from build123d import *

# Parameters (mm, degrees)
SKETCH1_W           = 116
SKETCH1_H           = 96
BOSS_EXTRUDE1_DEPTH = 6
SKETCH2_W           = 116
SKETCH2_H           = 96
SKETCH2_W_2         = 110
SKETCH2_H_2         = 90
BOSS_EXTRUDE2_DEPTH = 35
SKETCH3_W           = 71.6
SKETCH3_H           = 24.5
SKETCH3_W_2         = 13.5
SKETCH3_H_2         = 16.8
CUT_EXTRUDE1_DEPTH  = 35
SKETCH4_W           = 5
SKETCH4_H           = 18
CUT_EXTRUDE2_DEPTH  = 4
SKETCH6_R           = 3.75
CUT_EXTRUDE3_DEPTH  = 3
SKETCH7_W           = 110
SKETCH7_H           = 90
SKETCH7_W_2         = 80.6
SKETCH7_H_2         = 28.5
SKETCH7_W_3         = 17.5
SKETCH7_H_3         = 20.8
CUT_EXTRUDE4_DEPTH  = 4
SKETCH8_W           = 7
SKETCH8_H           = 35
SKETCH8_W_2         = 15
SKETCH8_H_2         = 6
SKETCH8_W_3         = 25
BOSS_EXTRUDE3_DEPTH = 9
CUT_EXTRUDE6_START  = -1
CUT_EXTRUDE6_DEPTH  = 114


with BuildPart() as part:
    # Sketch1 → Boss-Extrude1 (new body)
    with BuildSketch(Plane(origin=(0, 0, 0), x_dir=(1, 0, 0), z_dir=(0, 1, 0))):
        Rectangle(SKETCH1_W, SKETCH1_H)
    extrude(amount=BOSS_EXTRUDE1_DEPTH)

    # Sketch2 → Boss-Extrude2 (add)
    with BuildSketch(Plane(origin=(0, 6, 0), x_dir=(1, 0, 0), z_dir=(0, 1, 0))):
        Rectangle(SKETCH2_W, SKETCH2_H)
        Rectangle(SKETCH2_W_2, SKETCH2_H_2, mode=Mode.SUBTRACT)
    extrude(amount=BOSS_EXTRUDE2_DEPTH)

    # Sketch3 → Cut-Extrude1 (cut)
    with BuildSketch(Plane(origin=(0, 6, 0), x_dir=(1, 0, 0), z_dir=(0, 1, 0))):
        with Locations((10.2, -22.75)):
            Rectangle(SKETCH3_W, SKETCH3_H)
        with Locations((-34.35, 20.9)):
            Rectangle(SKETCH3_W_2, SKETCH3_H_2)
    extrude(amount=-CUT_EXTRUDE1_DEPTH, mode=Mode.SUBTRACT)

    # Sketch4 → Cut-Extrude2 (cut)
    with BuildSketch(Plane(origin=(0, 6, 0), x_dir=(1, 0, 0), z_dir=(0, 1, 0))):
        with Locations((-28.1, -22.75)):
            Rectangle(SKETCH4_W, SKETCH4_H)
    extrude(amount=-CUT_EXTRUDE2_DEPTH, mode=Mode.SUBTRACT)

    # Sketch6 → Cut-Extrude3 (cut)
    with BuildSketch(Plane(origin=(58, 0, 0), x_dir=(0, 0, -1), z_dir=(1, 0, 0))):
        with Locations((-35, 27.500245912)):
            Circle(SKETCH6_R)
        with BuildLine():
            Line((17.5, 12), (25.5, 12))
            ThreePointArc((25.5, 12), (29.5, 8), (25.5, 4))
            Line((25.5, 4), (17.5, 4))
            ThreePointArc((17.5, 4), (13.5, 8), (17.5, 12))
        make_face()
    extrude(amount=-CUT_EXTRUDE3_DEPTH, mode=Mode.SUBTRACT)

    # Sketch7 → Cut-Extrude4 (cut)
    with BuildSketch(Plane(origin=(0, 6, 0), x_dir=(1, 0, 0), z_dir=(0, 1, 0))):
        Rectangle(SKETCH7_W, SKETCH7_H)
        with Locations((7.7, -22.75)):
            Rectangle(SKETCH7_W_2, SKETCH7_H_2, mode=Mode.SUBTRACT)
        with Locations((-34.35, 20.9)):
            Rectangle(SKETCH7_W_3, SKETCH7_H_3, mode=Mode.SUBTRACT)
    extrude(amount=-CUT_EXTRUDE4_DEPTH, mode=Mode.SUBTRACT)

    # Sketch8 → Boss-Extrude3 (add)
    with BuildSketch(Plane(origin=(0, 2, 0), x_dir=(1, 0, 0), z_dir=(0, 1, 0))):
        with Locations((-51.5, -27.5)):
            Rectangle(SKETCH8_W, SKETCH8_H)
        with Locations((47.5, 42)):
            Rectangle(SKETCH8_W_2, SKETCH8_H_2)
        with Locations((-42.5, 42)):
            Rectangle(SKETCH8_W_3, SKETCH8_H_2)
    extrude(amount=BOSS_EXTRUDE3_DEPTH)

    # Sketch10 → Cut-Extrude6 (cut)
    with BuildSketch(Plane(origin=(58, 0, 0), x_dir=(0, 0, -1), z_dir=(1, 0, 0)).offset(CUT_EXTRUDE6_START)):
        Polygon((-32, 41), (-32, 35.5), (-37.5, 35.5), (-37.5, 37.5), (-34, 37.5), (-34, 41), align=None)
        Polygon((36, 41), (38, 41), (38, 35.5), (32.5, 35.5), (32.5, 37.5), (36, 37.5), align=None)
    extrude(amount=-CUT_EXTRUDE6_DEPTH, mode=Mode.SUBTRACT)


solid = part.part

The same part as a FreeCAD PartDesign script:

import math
import FreeCAD as App
import Part
import Sketcher

V = App.Vector
Q = App.Units.Quantity

doc = App.newDocument("Part")
body = doc.addObject("PartDesign::Body", "Body")

# Sketch on XZ plane
sketch1 = body.newObject("Sketcher::SketchObject", "Sketch")
sketch1.AttachmentSupport = (doc.getObject("XZ_Plane"), [""])
sketch1.MapMode = "FlatFace"
sketch1.addGeometry(Part.LineSegment(V(-58, -48, 0), V(-58, 48, 0)), False)
sketch1.addGeometry(Part.LineSegment(V(-58, 48, 0), V(58, 48, 0)), False)
sketch1.addGeometry(Part.LineSegment(V(58, 48, 0), V(58, -48, 0)), False)
sketch1.addGeometry(Part.LineSegment(V(58, -48, 0), V(-58, -48, 0)), False)
sketch1.addConstraint(Sketcher.Constraint("Coincident", 0, 2, 1, 1))
sketch1.addConstraint(Sketcher.Constraint("Coincident", 1, 2, 2, 1))
sketch1.addConstraint(Sketcher.Constraint("Coincident", 2, 2, 3, 1))
sketch1.addConstraint(Sketcher.Constraint("Coincident", 3, 2, 0, 1))
sketch1.addConstraint(Sketcher.Constraint("Vertical", 0))
sketch1.addConstraint(Sketcher.Constraint("Horizontal", 1))
sketch1.addConstraint(Sketcher.Constraint("Vertical", 2))
sketch1.addConstraint(Sketcher.Constraint("Horizontal", 3))
sketch1.addConstraint(Sketcher.Constraint("Symmetric", 0, 2, 2, 2, -1, 1))
sketch1.addConstraint(Sketcher.Constraint("DistanceX", 1, 1, 1, 2, Q("116 mm")))
sketch1.addConstraint(Sketcher.Constraint("DistanceY", 0, 1, 0, 2, Q("96 mm")))
pad1 = body.newObject("PartDesign::Pad", "Pad")
pad1.Profile = sketch1
pad1.Length = 6
pad1.Reversed = True

# Sketch on XZ plane
sketch2 = body.newObject("Sketcher::SketchObject", "Sketch001")
sketch2.AttachmentSupport = (doc.getObject("XZ_Plane"), [""])
sketch2.MapMode = "FlatFace"
sketch2.AttachmentOffset = App.Placement(V(0, 0, -6), App.Rotation())
sketch2.addGeometry(Part.LineSegment(V(-58, -48, 0), V(-58, 48, 0)), False)
sketch2.addGeometry(Part.LineSegment(V(-58, 48, 0), V(58, 48, 0)), False)
sketch2.addGeometry(Part.LineSegment(V(58, 48, 0), V(58, -48, 0)), False)
sketch2.addGeometry(Part.LineSegment(V(58, -48, 0), V(-58, -48, 0)), False)
sketch2.addGeometry(Part.LineSegment(V(55, 45, 0), V(-55, 45, 0)), False)
sketch2.addGeometry(Part.LineSegment(V(-55, 45, 0), V(-55, -45, 0)), False)
sketch2.addGeometry(Part.LineSegment(V(-55, -45, 0), V(55, -45, 0)), False)
sketch2.addGeometry(Part.LineSegment(V(55, -45, 0), V(55, 45, 0)), False)
sketch2.addConstraint(Sketcher.Constraint("Coincident", 0, 2, 1, 1))
sketch2.addConstraint(Sketcher.Constraint("Coincident", 1, 2, 2, 1))
sketch2.addConstraint(Sketcher.Constraint("Coincident", 2, 2, 3, 1))
sketch2.addConstraint(Sketcher.Constraint("Coincident", 3, 2, 0, 1))
sketch2.addConstraint(Sketcher.Constraint("Coincident", 4, 2, 5, 1))
sketch2.addConstraint(Sketcher.Constraint("Coincident", 5, 2, 6, 1))
sketch2.addConstraint(Sketcher.Constraint("Coincident", 6, 2, 7, 1))
sketch2.addConstraint(Sketcher.Constraint("Coincident", 7, 2, 4, 1))
sketch2.addConstraint(Sketcher.Constraint("Vertical", 0))
sketch2.addConstraint(Sketcher.Constraint("Horizontal", 1))
sketch2.addConstraint(Sketcher.Constraint("Vertical", 2))
sketch2.addConstraint(Sketcher.Constraint("Horizontal", 3))
sketch2.addConstraint(Sketcher.Constraint("Horizontal", 4))
sketch2.addConstraint(Sketcher.Constraint("Vertical", 5))
sketch2.addConstraint(Sketcher.Constraint("Horizontal", 6))
sketch2.addConstraint(Sketcher.Constraint("Vertical", 7))
sketch2.addConstraint(Sketcher.Constraint("Symmetric", 0, 2, 2, 2, -1, 1))
sketch2.addConstraint(Sketcher.Constraint("Symmetric", 4, 2, 6, 2, -1, 1))
sketch2.addConstraint(Sketcher.Constraint("DistanceX", 1, 1, 1, 2, Q("116 mm")))
sketch2.addConstraint(Sketcher.Constraint("DistanceX", 4, 2, 4, 1, Q("110 mm")))
sketch2.addConstraint(Sketcher.Constraint("DistanceY", 0, 1, 0, 2, Q("96 mm")))
sketch2.addConstraint(Sketcher.Constraint("DistanceY", 5, 2, 5, 1, Q("90 mm")))
pad2 = body.newObject("PartDesign::Pad", "Pad001")
pad2.Profile = sketch2
pad2.Length = 35
pad2.Reversed = True

# Sketch on XZ plane
sketch3 = body.newObject("Sketcher::SketchObject", "Sketch002")
sketch3.AttachmentSupport = (doc.getObject("XZ_Plane"), [""])
sketch3.MapMode = "FlatFace"
sketch3.AttachmentOffset = App.Placement(V(0, 0, -6), App.Rotation())
sketch3.addGeometry(Part.LineSegment(V(-26, 10, 0), V(-26, 35, 0)), False)
sketch3.addGeometry(Part.LineSegment(V(-26, 35, 0), V(46, 35, 0)), False)
sketch3.addGeometry(Part.LineSegment(V(46, 35, 0), V(46, 10, 0)), False)
sketch3.addGeometry(Part.LineSegment(V(46, 10, 0), V(-26, 10, 0)), False)
sketch3.addGeometry(Part.LineSegment(V(-41, -29, 0), V(-41, -12, 0)), False)
sketch3.addGeometry(Part.LineSegment(V(-41, -12, 0), V(-28, -12, 0)), False)
sketch3.addGeometry(Part.LineSegment(V(-28, -12, 0), V(-28, -29, 0)), False)
sketch3.addGeometry(Part.LineSegment(V(-28, -29, 0), V(-41, -29, 0)), False)
sketch3.addConstraint(Sketcher.Constraint("Coincident", 0, 2, 1, 1))
sketch3.addConstraint(Sketcher.Constraint("Coincident", 1, 2, 2, 1))
sketch3.addConstraint(Sketcher.Constraint("Coincident", 2, 2, 3, 1))
sketch3.addConstraint(Sketcher.Constraint("Coincident", 3, 2, 0, 1))
sketch3.addConstraint(Sketcher.Constraint("Coincident", 4, 2, 5, 1))
sketch3.addConstraint(Sketcher.Constraint("Coincident", 5, 2, 6, 1))
sketch3.addConstraint(Sketcher.Constraint("Coincident", 6, 2, 7, 1))
sketch3.addConstraint(Sketcher.Constraint("Coincident", 7, 2, 4, 1))
sketch3.addConstraint(Sketcher.Constraint("Vertical", 0))
sketch3.addConstraint(Sketcher.Constraint("Horizontal", 1))
sketch3.addConstraint(Sketcher.Constraint("Vertical", 2))
sketch3.addConstraint(Sketcher.Constraint("Horizontal", 3))
sketch3.addConstraint(Sketcher.Constraint("Vertical", 4))
sketch3.addConstraint(Sketcher.Constraint("Horizontal", 5))
sketch3.addConstraint(Sketcher.Constraint("Vertical", 6))
sketch3.addConstraint(Sketcher.Constraint("Horizontal", 7))
sketch3.addConstraint(Sketcher.Constraint("DistanceX", 1, 1, 1, 2, Q("71.6 mm")))
sketch3.addConstraint(Sketcher.Constraint("DistanceX", 5, 1, 5, 2, Q("13.5 mm")))
sketch3.addConstraint(Sketcher.Constraint("DistanceY", 0, 1, 0, 2, Q("24.5 mm")))
sketch3.addConstraint(Sketcher.Constraint("DistanceY", 4, 1, 4, 2, Q("16.8 mm")))
sketch3.addConstraint(Sketcher.Constraint("DistanceY", -1, 1, 0, 2, Q("35 mm")))
sketch3.addConstraint(Sketcher.Constraint("DistanceX", -1, 1, 1, 2, Q("46 mm")))
sketch3.addConstraint(Sketcher.Constraint("DistanceY", 4, 2, 3, 2, Q("23 mm")))
sketch3.addConstraint(Sketcher.Constraint("DistanceX", 5, 2, 3, 2, Q("2 mm")))
pocket1 = body.newObject("PartDesign::Pocket", "Pocket")
pocket1.Profile = sketch3
pocket1.Length = 35
pocket1.Reversed = True

# Sketch on XZ plane
sketch4 = body.newObject("Sketcher::SketchObject", "Sketch003")
sketch4.AttachmentSupport = (doc.getObject("XZ_Plane"), [""])
sketch4.MapMode = "FlatFace"
sketch4.AttachmentOffset = App.Placement(V(0, 0, -6), App.Rotation())
sketch4.addGeometry(Part.LineSegment(V(-31, 14, 0), V(-31, 32, 0)), False)
sketch4.addGeometry(Part.LineSegment(V(-31, 32, 0), V(-26, 32, 0)), False)
sketch4.addGeometry(Part.LineSegment(V(-26, 32, 0), V(-26, 14, 0)), False)
sketch4.addGeometry(Part.LineSegment(V(-26, 14, 0), V(-31, 14, 0)), False)
sketch4.addConstraint(Sketcher.Constraint("Coincident", 0, 2, 1, 1))
sketch4.addConstraint(Sketcher.Constraint("Coincident", 1, 2, 2, 1))
sketch4.addConstraint(Sketcher.Constraint("Coincident", 2, 2, 3, 1))
sketch4.addConstraint(Sketcher.Constraint("Coincident", 3, 2, 0, 1))
sketch4.addConstraint(Sketcher.Constraint("Vertical", 0))
sketch4.addConstraint(Sketcher.Constraint("Horizontal", 1))
sketch4.addConstraint(Sketcher.Constraint("Vertical", 2))
sketch4.addConstraint(Sketcher.Constraint("Horizontal", 3))
sketch4.addConstraint(Sketcher.Constraint("DistanceX", 1, 1, 1, 2, Q("5 mm")))
sketch4.addConstraint(Sketcher.Constraint("DistanceY", 0, 1, 0, 2, Q("18 mm")))
sketch4.addConstraint(Sketcher.Constraint("DistanceX", 0, 2, -1, 1, Q("30.6 mm")))
sketch4.addConstraint(Sketcher.Constraint("DistanceY", -1, 1, 0, 2, Q("31.75 mm")))
pocket2 = body.newObject("PartDesign::Pocket", "Pocket001")
pocket2.Profile = sketch4
pocket2.Length = 4
pocket2.Reversed = True

# Sketch on YZ plane
sketch5 = body.newObject("Sketcher::SketchObject", "Sketch004")
sketch5.AttachmentSupport = (doc.getObject("YZ_Plane"), [""])
sketch5.MapMode = "FlatFace"
sketch5.AttachmentOffset = App.Placement(V(0, 0, 58), App.Rotation())
sketch5.addGeometry(Part.Circle(V(27.5, 35, 0), V(0, 0, 1), 3.8), False)
sketch5.addGeometry(Part.LineSegment(V(12, -25.5, 0), V(12, -17.5, 0)), False)
sketch5.addGeometry(Part.ArcOfCircle(Part.Circle(V(8, -17.5, 0), V(0, 0, 1), 4), math.radians(0), math.radians(180)), False)
sketch5.addGeometry(Part.LineSegment(V(4, -17.5, 0), V(4, -25.5, 0)), False)
sketch5.addGeometry(Part.ArcOfCircle(Part.Circle(V(8, -25.5, 0), V(0, 0, 1), 4), math.radians(180), math.radians(360)), False)
sketch5.addConstraint(Sketcher.Constraint("Tangent", 1, 2, 2, 1))
sketch5.addConstraint(Sketcher.Constraint("Tangent", 2, 2, 3, 1))
sketch5.addConstraint(Sketcher.Constraint("Tangent", 3, 2, 4, 1))
sketch5.addConstraint(Sketcher.Constraint("Tangent", 4, 2, 1, 1))
sketch5.addConstraint(Sketcher.Constraint("Vertical", 1))
sketch5.addConstraint(Sketcher.Constraint("Vertical", 3))
sketch5.addConstraint(Sketcher.Constraint("Radius", 2, Q("4 mm")))
sketch5.addConstraint(Sketcher.Constraint("Diameter", 0, Q("7.5 mm")))
sketch5.addConstraint(Sketcher.Constraint("DistanceY", 1, 1, 1, 2, Q("8 mm")))
sketch5.addConstraint(Sketcher.Constraint("DistanceY", -1, 1, 0, 3, Q("35 mm")))
sketch5.addConstraint(Sketcher.Constraint("DistanceX", -1, 1, 2, 3, Q("8 mm")))
sketch5.addConstraint(Sketcher.Constraint("DistanceY", 2, 3, -1, 1, Q("17.5 mm")))
sketch5.addConstraint(Sketcher.Constraint("DistanceX", -1, 1, 0, 3, Q("27.500246 mm")))
pocket3 = body.newObject("PartDesign::Pocket", "Pocket002")
pocket3.Profile = sketch5
pocket3.Length = 3

# Sketch on XZ plane
sketch6 = body.newObject("Sketcher::SketchObject", "Sketch005")
sketch6.AttachmentSupport = (doc.getObject("XZ_Plane"), [""])
sketch6.MapMode = "FlatFace"
sketch6.AttachmentOffset = App.Placement(V(0, 0, -6), App.Rotation())
sketch6.addGeometry(Part.LineSegment(V(-55, -45, 0), V(-55, 45, 0)), False)
sketch6.addGeometry(Part.LineSegment(V(-55, 45, 0), V(55, 45, 0)), False)
sketch6.addGeometry(Part.LineSegment(V(55, 45, 0), V(55, -45, 0)), False)
sketch6.addGeometry(Part.LineSegment(V(55, -45, 0), V(-55, -45, 0)), False)
sketch6.addGeometry(Part.LineSegment(V(48, 37, 0), V(-33, 37, 0)), False)
sketch6.addGeometry(Part.LineSegment(V(-33, 37, 0), V(-33, 8, 0)), False)
sketch6.addGeometry(Part.LineSegment(V(-33, 8, 0), V(48, 8, 0)), False)
sketch6.addGeometry(Part.LineSegment(V(48, 8, 0), V(48, 37, 0)), False)
sketch6.addGeometry(Part.LineSegment(V(-26, -10, 0), V(-43, -10, 0)), False)
sketch6.addGeometry(Part.LineSegment(V(-43, -10, 0), V(-43, -31, 0)), False)
sketch6.addGeometry(Part.LineSegment(V(-43, -31, 0), V(-26, -31, 0)), False)
sketch6.addGeometry(Part.LineSegment(V(-26, -31, 0), V(-26, -10, 0)), False)
sketch6.addConstraint(Sketcher.Constraint("Coincident", 0, 2, 1, 1))
sketch6.addConstraint(Sketcher.Constraint("Coincident", 1, 2, 2, 1))
sketch6.addConstraint(Sketcher.Constraint("Coincident", 2, 2, 3, 1))
sketch6.addConstraint(Sketcher.Constraint("Coincident", 3, 2, 0, 1))
sketch6.addConstraint(Sketcher.Constraint("Coincident", 4, 2, 5, 1))
sketch6.addConstraint(Sketcher.Constraint("Coincident", 5, 2, 6, 1))
sketch6.addConstraint(Sketcher.Constraint("Coincident", 6, 2, 7, 1))
sketch6.addConstraint(Sketcher.Constraint("Coincident", 7, 2, 4, 1))
sketch6.addConstraint(Sketcher.Constraint("Coincident", 8, 2, 9, 1))
sketch6.addConstraint(Sketcher.Constraint("Coincident", 9, 2, 10, 1))
sketch6.addConstraint(Sketcher.Constraint("Coincident", 10, 2, 11, 1))
sketch6.addConstraint(Sketcher.Constraint("Coincident", 11, 2, 8, 1))
sketch6.addConstraint(Sketcher.Constraint("Vertical", 0))
sketch6.addConstraint(Sketcher.Constraint("Horizontal", 1))
sketch6.addConstraint(Sketcher.Constraint("Vertical", 2))
sketch6.addConstraint(Sketcher.Constraint("Horizontal", 3))
sketch6.addConstraint(Sketcher.Constraint("Horizontal", 4))
sketch6.addConstraint(Sketcher.Constraint("Vertical", 5))
sketch6.addConstraint(Sketcher.Constraint("Horizontal", 6))
sketch6.addConstraint(Sketcher.Constraint("Vertical", 7))
sketch6.addConstraint(Sketcher.Constraint("Horizontal", 8))
sketch6.addConstraint(Sketcher.Constraint("Vertical", 9))
sketch6.addConstraint(Sketcher.Constraint("Horizontal", 10))
sketch6.addConstraint(Sketcher.Constraint("Vertical", 11))
sketch6.addConstraint(Sketcher.Constraint("Symmetric", 0, 2, 2, 2, -1, 1))
sketch6.addConstraint(Sketcher.Constraint("DistanceX", 1, 1, 1, 2, Q("110 mm")))
sketch6.addConstraint(Sketcher.Constraint("DistanceY", 0, 1, 0, 2, Q("90 mm")))
sketch6.addConstraint(Sketcher.Constraint("DistanceX", 4, 2, 4, 1, Q("80.6 mm")))
sketch6.addConstraint(Sketcher.Constraint("DistanceX", 8, 2, 8, 1, Q("17.5 mm")))
sketch6.addConstraint(Sketcher.Constraint("DistanceY", 5, 2, 5, 1, Q("28.5 mm")))
sketch6.addConstraint(Sketcher.Constraint("DistanceY", 9, 2, 9, 1, Q("20.8 mm")))
sketch6.addConstraint(Sketcher.Constraint("DistanceY", -1, 1, 4, 2, Q("37 mm")))
sketch6.addConstraint(Sketcher.Constraint("DistanceX", -1, 1, 6, 2, Q("48 mm")))
sketch6.addConstraint(Sketcher.Constraint("DistanceY", 8, 2, 5, 2, Q("19 mm")))
sketch6.addConstraint(Sketcher.Constraint("DistanceX", 5, 2, 10, 2, Q("7 mm")))
pocket4 = body.newObject("PartDesign::Pocket", "Pocket003")
pocket4.Profile = sketch6
pocket4.Length = 4
pocket4.Reversed = True

# Sketch on XZ plane
sketch7 = body.newObject("Sketcher::SketchObject", "Sketch006")
sketch7.AttachmentSupport = (doc.getObject("XZ_Plane"), [""])
sketch7.MapMode = "FlatFace"
sketch7.AttachmentOffset = App.Placement(V(0, 0, -2), App.Rotation())
sketch7.addGeometry(Part.LineSegment(V(-55, 10, 0), V(-55, 45, 0)), False)
sketch7.addGeometry(Part.LineSegment(V(-55, 45, 0), V(-48, 45, 0)), False)
sketch7.addGeometry(Part.LineSegment(V(-48, 45, 0), V(-48, 10, 0)), False)
sketch7.addGeometry(Part.LineSegment(V(-48, 10, 0), V(-55, 10, 0)), False)
sketch7.addGeometry(Part.LineSegment(V(40, -45, 0), V(40, -39, 0)), False)
sketch7.addGeometry(Part.LineSegment(V(40, -39, 0), V(55, -39, 0)), False)
sketch7.addGeometry(Part.LineSegment(V(55, -39, 0), V(55, -45, 0)), False)
sketch7.addGeometry(Part.LineSegment(V(55, -45, 0), V(40, -45, 0)), False)
sketch7.addGeometry(Part.LineSegment(V(-55, -45, 0), V(-55, -39, 0)), False)
sketch7.addGeometry(Part.LineSegment(V(-55, -39, 0), V(-30, -39, 0)), False)
sketch7.addGeometry(Part.LineSegment(V(-30, -39, 0), V(-30, -45, 0)), False)
sketch7.addGeometry(Part.LineSegment(V(-30, -45, 0), V(-55, -45, 0)), False)
sketch7.addConstraint(Sketcher.Constraint("Coincident", 0, 2, 1, 1))
sketch7.addConstraint(Sketcher.Constraint("Coincident", 1, 2, 2, 1))
sketch7.addConstraint(Sketcher.Constraint("Coincident", 2, 2, 3, 1))
sketch7.addConstraint(Sketcher.Constraint("Coincident", 3, 2, 0, 1))
sketch7.addConstraint(Sketcher.Constraint("Coincident", 4, 2, 5, 1))
sketch7.addConstraint(Sketcher.Constraint("Coincident", 5, 2, 6, 1))
sketch7.addConstraint(Sketcher.Constraint("Coincident", 6, 2, 7, 1))
sketch7.addConstraint(Sketcher.Constraint("Coincident", 7, 2, 4, 1))
sketch7.addConstraint(Sketcher.Constraint("Coincident", 8, 2, 9, 1))
sketch7.addConstraint(Sketcher.Constraint("Coincident", 9, 2, 10, 1))
sketch7.addConstraint(Sketcher.Constraint("Coincident", 10, 2, 11, 1))
sketch7.addConstraint(Sketcher.Constraint("Coincident", 11, 2, 8, 1))
sketch7.addConstraint(Sketcher.Constraint("Vertical", 0))
sketch7.addConstraint(Sketcher.Constraint("Horizontal", 1))
sketch7.addConstraint(Sketcher.Constraint("Vertical", 2))
sketch7.addConstraint(Sketcher.Constraint("Horizontal", 3))
sketch7.addConstraint(Sketcher.Constraint("Vertical", 4))
sketch7.addConstraint(Sketcher.Constraint("Horizontal", 5))
sketch7.addConstraint(Sketcher.Constraint("Vertical", 6))
sketch7.addConstraint(Sketcher.Constraint("Horizontal", 7))
sketch7.addConstraint(Sketcher.Constraint("Vertical", 8))
sketch7.addConstraint(Sketcher.Constraint("Horizontal", 9))
sketch7.addConstraint(Sketcher.Constraint("Vertical", 10))
sketch7.addConstraint(Sketcher.Constraint("Horizontal", 11))
sketch7.addConstraint(Sketcher.Constraint("Symmetric", 0, 2, 6, 2, -1, 1))
sketch7.addConstraint(Sketcher.Constraint("Symmetric", 5, 2, 8, 2, -2))
sketch7.addConstraint(Sketcher.Constraint("Horizontal", 7, 2, 10, 2))
sketch7.addConstraint(Sketcher.Constraint("DistanceX", 1, 1, 1, 2, Q("7 mm")))
sketch7.addConstraint(Sketcher.Constraint("DistanceX", 5, 1, 5, 2, Q("15 mm")))
sketch7.addConstraint(Sketcher.Constraint("DistanceX", 9, 1, 9, 2, Q("25 mm")))
sketch7.addConstraint(Sketcher.Constraint("DistanceY", 0, 1, 0, 2, Q("35 mm")))
sketch7.addConstraint(Sketcher.Constraint("DistanceY", 4, 1, 4, 2, Q("6 mm")))
sketch7.addConstraint(Sketcher.Constraint("DistanceX", 0, 2, -1, 1, Q("55 mm")))
sketch7.addConstraint(Sketcher.Constraint("DistanceY", -1, 1, 0, 2, Q("45 mm")))
pad3 = body.newObject("PartDesign::Pad", "Pad002")
pad3.Profile = sketch7
pad3.Length = 9
pad3.Reversed = True

# Sketch on YZ plane
sketch8 = body.newObject("Sketcher::SketchObject", "Sketch007")
sketch8.AttachmentSupport = (doc.getObject("YZ_Plane"), [""])
sketch8.MapMode = "FlatFace"
sketch8.AttachmentOffset = App.Placement(V(0, 0, 57), App.Rotation())
sketch8.addGeometry(Part.LineSegment(V(35.5, 32, 0), V(41, 32, 0)), False)
sketch8.addGeometry(Part.LineSegment(V(41, 32, 0), V(41, 34, 0)), False)
sketch8.addGeometry(Part.LineSegment(V(41, 34, 0), V(37.5, 34, 0)), False)
sketch8.addGeometry(Part.LineSegment(V(37.5, 34, 0), V(37.5, 37.5, 0)), False)
sketch8.addGeometry(Part.LineSegment(V(37.5, 37.5, 0), V(35.5, 37.5, 0)), False)
sketch8.addGeometry(Part.LineSegment(V(35.5, 37.5, 0), V(35.5, 32, 0)), False)
sketch8.addGeometry(Part.LineSegment(V(41, -38, 0), V(41, -36, 0)), False)
sketch8.addGeometry(Part.LineSegment(V(41, -36, 0), V(37.5, -36, 0)), False)
sketch8.addGeometry(Part.LineSegment(V(37.5, -36, 0), V(37.5, -32.5, 0)), False)
sketch8.addGeometry(Part.LineSegment(V(37.5, -32.5, 0), V(35.5, -32.5, 0)), False)
sketch8.addGeometry(Part.LineSegment(V(35.5, -32.5, 0), V(35.5, -38, 0)), False)
sketch8.addGeometry(Part.LineSegment(V(35.5, -38, 0), V(41, -38, 0)), False)
sketch8.addConstraint(Sketcher.Constraint("Coincident", 0, 2, 1, 1))
sketch8.addConstraint(Sketcher.Constraint("Coincident", 1, 2, 2, 1))
sketch8.addConstraint(Sketcher.Constraint("Coincident", 2, 2, 3, 1))
sketch8.addConstraint(Sketcher.Constraint("Coincident", 3, 2, 4, 1))
sketch8.addConstraint(Sketcher.Constraint("Coincident", 4, 2, 5, 1))
sketch8.addConstraint(Sketcher.Constraint("Coincident", 5, 2, 0, 1))
sketch8.addConstraint(Sketcher.Constraint("Coincident", 6, 2, 7, 1))
sketch8.addConstraint(Sketcher.Constraint("Coincident", 7, 2, 8, 1))
sketch8.addConstraint(Sketcher.Constraint("Coincident", 8, 2, 9, 1))
sketch8.addConstraint(Sketcher.Constraint("Coincident", 9, 2, 10, 1))
sketch8.addConstraint(Sketcher.Constraint("Coincident", 10, 2, 11, 1))
sketch8.addConstraint(Sketcher.Constraint("Coincident", 11, 2, 6, 1))
sketch8.addConstraint(Sketcher.Constraint("Horizontal", 0))
sketch8.addConstraint(Sketcher.Constraint("Vertical", 1))
sketch8.addConstraint(Sketcher.Constraint("Horizontal", 2))
sketch8.addConstraint(Sketcher.Constraint("Vertical", 3))
sketch8.addConstraint(Sketcher.Constraint("Horizontal", 4))
sketch8.addConstraint(Sketcher.Constraint("Vertical", 5))
sketch8.addConstraint(Sketcher.Constraint("Vertical", 6))
sketch8.addConstraint(Sketcher.Constraint("Horizontal", 7))
sketch8.addConstraint(Sketcher.Constraint("Vertical", 8))
sketch8.addConstraint(Sketcher.Constraint("Horizontal", 9))
sketch8.addConstraint(Sketcher.Constraint("Vertical", 10))
sketch8.addConstraint(Sketcher.Constraint("Horizontal", 11))
sketch8.addConstraint(Sketcher.Constraint("Vertical", 1, 2, 6, 2))
sketch8.addConstraint(Sketcher.Constraint("Vertical", 3, 2, 7, 2))
sketch8.addConstraint(Sketcher.Constraint("Vertical", 5, 2, 9, 2))
sketch8.addConstraint(Sketcher.Constraint("Equal", 9, 1))
sketch8.addConstraint(Sketcher.Constraint("Equal", 7, 3))
sketch8.addConstraint(Sketcher.Constraint("Equal", 1, 6))
sketch8.addConstraint(Sketcher.Constraint("Equal", 3, 8))
sketch8.addConstraint(Sketcher.Constraint("DistanceX", 4, 2, 4, 1, Q("2 mm")))
sketch8.addConstraint(Sketcher.Constraint("DistanceX", 0, 1, 0, 2, Q("5.5 mm")))
sketch8.addConstraint(Sketcher.Constraint("DistanceX", -1, 1, 0, 2, Q("41 mm")))
sketch8.addConstraint(Sketcher.Constraint("DistanceY", -1, 1, 0, 2, Q("32 mm")))
sketch8.addConstraint(Sketcher.Constraint("DistanceY", 6, 2, -1, 1, Q("36 mm")))
pocket5 = body.newObject("PartDesign::Pocket", "Pocket004")
pocket5.Profile = sketch8
pocket5.Length = 114

doc.recompute()
